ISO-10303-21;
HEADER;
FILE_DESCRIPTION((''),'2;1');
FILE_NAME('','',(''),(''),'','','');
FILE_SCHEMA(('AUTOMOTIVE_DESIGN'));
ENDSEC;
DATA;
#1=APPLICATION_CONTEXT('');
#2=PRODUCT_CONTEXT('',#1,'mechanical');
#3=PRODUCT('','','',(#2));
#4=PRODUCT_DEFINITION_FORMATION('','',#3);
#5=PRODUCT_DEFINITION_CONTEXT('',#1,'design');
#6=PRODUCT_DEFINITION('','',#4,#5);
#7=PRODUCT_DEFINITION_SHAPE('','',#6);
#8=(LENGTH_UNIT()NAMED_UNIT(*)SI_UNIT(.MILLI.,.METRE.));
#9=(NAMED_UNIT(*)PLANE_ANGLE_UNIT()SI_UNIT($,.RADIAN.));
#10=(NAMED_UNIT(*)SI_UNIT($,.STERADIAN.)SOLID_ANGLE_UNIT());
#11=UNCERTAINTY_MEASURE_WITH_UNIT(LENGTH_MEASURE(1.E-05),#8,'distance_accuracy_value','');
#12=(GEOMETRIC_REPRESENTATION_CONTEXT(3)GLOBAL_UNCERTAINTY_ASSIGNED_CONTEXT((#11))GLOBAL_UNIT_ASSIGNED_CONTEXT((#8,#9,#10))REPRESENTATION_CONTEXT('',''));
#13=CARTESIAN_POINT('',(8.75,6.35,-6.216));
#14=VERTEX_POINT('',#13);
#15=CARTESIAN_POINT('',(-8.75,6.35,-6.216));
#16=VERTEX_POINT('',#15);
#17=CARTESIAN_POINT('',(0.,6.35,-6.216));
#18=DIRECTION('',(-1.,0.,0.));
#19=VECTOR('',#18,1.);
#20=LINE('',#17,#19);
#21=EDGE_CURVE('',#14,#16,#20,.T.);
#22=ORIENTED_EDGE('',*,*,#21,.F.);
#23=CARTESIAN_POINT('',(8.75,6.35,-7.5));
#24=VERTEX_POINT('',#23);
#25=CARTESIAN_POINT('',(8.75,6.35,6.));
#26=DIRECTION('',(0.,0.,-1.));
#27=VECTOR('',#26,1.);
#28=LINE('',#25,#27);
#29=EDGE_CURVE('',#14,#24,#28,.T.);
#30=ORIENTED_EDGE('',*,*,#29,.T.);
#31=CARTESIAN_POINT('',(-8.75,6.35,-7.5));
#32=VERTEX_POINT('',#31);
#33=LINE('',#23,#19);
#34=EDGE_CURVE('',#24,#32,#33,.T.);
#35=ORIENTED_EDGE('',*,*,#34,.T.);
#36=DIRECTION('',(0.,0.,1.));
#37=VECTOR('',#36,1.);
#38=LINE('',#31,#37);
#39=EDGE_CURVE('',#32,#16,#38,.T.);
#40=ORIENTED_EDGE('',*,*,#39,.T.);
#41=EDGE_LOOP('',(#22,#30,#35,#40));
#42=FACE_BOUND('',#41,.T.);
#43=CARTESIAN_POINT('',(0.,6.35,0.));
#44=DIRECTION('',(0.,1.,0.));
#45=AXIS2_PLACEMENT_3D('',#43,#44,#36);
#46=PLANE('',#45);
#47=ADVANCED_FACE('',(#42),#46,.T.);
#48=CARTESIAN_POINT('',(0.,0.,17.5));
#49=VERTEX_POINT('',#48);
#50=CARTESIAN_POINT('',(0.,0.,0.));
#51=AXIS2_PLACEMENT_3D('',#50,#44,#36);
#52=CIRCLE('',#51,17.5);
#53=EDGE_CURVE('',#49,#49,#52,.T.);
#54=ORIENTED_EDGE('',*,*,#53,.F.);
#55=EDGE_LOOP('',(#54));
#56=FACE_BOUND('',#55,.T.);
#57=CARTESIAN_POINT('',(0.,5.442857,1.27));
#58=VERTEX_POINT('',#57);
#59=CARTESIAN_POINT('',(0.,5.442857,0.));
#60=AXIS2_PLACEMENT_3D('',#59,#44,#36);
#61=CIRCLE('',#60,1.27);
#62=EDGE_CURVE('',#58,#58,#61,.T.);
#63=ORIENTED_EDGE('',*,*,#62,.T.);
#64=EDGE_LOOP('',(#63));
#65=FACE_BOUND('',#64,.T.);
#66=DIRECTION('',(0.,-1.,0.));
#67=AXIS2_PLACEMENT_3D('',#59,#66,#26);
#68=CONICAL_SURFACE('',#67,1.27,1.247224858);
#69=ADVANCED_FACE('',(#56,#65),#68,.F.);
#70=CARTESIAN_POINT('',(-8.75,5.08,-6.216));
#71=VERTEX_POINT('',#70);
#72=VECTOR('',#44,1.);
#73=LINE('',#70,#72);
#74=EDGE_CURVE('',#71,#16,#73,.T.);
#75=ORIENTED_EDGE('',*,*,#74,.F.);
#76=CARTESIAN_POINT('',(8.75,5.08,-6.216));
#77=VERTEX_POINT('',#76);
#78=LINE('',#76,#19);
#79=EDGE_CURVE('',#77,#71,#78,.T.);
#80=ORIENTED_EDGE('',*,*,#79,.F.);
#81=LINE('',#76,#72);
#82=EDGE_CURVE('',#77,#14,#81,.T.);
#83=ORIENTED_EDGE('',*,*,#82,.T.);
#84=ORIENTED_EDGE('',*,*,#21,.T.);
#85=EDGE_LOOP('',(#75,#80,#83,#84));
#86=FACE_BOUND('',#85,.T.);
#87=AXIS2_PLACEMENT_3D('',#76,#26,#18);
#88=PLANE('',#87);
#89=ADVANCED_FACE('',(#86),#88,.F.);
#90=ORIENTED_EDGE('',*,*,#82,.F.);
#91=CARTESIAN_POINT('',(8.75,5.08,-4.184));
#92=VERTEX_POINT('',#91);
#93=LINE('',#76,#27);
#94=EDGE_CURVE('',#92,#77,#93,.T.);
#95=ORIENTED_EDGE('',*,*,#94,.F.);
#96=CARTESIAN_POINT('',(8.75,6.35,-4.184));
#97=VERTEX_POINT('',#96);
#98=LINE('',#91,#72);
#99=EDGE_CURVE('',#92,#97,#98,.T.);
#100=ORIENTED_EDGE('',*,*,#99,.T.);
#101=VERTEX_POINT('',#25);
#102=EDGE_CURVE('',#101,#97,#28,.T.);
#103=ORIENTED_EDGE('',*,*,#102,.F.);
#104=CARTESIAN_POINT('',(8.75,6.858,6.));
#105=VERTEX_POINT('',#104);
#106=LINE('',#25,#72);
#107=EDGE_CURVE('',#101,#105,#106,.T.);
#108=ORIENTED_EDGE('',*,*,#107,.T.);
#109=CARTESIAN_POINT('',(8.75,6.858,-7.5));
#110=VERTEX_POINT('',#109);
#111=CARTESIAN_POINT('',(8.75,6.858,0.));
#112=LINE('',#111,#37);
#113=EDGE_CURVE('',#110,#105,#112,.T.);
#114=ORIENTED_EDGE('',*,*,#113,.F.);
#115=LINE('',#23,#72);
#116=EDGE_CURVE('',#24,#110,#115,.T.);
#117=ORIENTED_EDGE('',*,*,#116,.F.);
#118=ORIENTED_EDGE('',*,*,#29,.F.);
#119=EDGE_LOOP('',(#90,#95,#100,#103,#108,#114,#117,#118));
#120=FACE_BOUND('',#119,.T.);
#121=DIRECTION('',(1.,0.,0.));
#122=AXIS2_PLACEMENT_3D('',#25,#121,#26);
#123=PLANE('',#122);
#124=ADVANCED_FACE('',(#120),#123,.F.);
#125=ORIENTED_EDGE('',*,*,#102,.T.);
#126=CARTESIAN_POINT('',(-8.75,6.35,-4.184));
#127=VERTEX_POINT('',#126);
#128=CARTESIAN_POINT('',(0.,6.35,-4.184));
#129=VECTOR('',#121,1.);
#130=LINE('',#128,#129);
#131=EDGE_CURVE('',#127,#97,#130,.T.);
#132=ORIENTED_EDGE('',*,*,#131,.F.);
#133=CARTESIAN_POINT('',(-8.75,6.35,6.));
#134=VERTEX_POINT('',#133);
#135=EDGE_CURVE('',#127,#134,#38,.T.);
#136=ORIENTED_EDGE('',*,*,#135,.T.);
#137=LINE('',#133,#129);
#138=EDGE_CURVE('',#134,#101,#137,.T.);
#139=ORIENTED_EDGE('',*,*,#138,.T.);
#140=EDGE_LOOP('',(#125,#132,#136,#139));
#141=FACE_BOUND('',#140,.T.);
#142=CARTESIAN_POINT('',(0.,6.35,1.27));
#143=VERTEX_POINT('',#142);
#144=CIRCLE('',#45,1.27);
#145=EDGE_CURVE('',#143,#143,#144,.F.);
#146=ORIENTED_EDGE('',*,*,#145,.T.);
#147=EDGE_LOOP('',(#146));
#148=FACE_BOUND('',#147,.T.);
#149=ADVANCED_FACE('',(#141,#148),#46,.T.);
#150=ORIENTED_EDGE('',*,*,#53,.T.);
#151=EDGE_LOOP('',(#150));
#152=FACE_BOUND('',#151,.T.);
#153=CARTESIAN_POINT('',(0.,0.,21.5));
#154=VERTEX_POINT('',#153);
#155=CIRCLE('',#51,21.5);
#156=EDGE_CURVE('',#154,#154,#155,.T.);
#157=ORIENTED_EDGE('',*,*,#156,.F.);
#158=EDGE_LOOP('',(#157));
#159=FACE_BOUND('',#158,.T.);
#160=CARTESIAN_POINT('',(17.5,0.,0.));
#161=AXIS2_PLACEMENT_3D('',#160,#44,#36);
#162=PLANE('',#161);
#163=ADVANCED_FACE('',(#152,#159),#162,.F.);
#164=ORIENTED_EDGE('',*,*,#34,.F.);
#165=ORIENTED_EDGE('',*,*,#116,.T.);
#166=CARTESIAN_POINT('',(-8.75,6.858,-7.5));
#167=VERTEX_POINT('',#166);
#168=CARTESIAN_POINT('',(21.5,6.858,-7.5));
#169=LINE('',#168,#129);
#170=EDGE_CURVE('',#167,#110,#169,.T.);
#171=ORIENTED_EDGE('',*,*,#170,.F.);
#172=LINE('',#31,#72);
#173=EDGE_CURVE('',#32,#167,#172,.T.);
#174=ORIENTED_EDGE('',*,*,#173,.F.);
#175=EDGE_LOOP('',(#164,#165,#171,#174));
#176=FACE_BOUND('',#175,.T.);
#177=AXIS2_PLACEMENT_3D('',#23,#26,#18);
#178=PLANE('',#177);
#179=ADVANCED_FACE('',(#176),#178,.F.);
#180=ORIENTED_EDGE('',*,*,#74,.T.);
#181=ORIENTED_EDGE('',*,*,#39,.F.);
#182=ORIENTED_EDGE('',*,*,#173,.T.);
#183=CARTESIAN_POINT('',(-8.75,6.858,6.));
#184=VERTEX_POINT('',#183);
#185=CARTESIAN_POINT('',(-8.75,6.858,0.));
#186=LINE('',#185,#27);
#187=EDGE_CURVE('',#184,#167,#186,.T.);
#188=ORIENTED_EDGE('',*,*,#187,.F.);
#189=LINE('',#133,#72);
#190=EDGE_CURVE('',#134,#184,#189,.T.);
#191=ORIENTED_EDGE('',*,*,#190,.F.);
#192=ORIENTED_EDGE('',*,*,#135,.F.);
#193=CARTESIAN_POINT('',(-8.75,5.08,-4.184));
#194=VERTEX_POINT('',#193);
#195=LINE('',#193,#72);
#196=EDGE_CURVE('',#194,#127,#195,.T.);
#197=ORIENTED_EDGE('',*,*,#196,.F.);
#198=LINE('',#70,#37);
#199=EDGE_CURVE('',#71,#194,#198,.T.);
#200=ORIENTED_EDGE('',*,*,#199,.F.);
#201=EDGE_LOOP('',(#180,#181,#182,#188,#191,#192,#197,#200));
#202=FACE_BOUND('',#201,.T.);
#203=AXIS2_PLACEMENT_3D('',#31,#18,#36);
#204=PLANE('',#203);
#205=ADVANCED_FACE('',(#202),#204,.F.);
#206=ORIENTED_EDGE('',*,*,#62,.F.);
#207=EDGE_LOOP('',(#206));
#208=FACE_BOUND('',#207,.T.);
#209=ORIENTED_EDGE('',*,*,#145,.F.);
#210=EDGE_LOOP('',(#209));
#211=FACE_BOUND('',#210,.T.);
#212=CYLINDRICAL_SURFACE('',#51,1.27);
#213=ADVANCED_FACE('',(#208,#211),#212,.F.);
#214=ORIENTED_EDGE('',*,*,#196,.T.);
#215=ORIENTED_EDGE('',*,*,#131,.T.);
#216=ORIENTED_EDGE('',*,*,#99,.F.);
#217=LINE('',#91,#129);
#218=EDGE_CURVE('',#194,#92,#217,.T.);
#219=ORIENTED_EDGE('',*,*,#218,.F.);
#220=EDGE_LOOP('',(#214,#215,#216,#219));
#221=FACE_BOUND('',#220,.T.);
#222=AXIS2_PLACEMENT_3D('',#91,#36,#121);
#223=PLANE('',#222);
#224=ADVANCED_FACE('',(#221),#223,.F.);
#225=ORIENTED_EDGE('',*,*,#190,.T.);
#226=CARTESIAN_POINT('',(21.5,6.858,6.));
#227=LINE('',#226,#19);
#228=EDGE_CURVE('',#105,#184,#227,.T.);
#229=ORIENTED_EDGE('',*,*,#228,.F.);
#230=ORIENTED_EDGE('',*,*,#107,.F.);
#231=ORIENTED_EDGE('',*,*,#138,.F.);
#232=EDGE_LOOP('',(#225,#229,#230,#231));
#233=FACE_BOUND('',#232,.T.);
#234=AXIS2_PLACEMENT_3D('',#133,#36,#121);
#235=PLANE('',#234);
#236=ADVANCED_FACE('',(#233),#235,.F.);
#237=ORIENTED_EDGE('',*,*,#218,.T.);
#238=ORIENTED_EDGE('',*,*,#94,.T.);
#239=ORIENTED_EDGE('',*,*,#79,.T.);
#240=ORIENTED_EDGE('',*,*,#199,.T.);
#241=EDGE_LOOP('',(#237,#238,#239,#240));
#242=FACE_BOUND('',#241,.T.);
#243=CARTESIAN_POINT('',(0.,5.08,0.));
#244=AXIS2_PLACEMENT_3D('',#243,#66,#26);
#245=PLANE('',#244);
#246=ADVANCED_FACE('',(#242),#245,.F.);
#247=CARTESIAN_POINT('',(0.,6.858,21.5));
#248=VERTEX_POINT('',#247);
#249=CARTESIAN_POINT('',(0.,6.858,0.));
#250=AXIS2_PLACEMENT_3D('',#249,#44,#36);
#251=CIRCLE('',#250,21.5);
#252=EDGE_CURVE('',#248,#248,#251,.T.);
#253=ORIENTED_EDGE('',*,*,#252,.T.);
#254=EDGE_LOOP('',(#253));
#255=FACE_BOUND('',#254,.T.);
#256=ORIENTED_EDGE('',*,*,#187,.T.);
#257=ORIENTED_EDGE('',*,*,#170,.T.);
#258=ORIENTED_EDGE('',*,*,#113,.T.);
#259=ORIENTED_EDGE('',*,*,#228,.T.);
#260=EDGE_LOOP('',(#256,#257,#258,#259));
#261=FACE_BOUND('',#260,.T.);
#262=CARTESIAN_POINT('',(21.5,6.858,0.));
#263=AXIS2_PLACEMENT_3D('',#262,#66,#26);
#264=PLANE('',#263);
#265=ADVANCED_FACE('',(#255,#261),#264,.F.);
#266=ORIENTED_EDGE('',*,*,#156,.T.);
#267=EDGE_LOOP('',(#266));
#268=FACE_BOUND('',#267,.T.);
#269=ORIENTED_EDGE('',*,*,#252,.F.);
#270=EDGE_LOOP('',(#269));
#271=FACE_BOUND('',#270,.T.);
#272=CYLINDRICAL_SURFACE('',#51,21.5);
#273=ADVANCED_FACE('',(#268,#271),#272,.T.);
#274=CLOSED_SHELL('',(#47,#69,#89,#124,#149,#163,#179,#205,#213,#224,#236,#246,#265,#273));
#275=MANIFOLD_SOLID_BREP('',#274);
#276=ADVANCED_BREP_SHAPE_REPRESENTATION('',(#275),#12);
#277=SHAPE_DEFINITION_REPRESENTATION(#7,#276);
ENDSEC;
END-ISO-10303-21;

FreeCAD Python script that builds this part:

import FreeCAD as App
import Part
import Sketcher

V = App.Vector
Q = App.Units.Quantity


def add_polygon(sketch, points):
    """Adds a closed chain of lines whose ends are joined by coincident constraints."""
    first, n = sketch.GeometryCount, len(points)
    for a, b in zip(points, points[1:] + points[:1]):
        sketch.addGeometry(Part.LineSegment(App.Vector(*a, 0), App.Vector(*b, 0)), False)
    for i in range(n):
        sketch.addConstraint(Sketcher.Constraint("Coincident", first + i, 2, first + (i + 1) % n, 1))

doc = App.newDocument("Part")
body = doc.addObject("PartDesign::Body", "Body")

sketch1 = body.newObject("Sketcher::SketchObject", "Sketch")
sketch1.AttachmentSupport = (doc.getObject("XY_Plane"), [""])
sketch1.MapMode = "FlatFace"
add_polygon(sketch1, [(1.3, 5.4), (17.5, 0), (21.5, 0), (21.5, 6.9), (1.3, 6.9)])
sketch1.addConstraint(Sketcher.Constraint("Horizontal", 1))
sketch1.addConstraint(Sketcher.Constraint("Vertical", 2))
sketch1.addConstraint(Sketcher.Constraint("Horizontal", 3))
sketch1.addConstraint(Sketcher.Constraint("Vertical", 4))
sketch1.addConstraint(Sketcher.Constraint("PointOnObject", 0, 2, -1))
sketch1.addConstraint(Sketcher.Constraint("DistanceY", 2, 1, 2, 2, Q("0.27 in")))
sketch1.addConstraint(Sketcher.Constraint("DistanceX", -1, 1, 3, 2, Q("0.05 in")))
sketch1.addConstraint(Sketcher.Constraint("DistanceX", 1, 1, 1, 2, Q("4 mm")))
sketch1.addConstraint(Sketcher.Constraint("DistanceX", 3, 2, 3, 1, Q("20.23 mm")))
sketch1.addConstraint(Sketcher.Constraint("Distance", 0, Q("17.118341 mm")))
revolution = body.newObject("PartDesign::Revolution", "Revolution")
revolution.Profile = sketch1
revolution.ReferenceAxis = (sketch1, ["V_Axis"])
revolution.Angle = 360

sketch2 = body.newObject("Sketcher::SketchObject", "Sketch001")
sketch2.AttachmentSupport = (doc.getObject("XZ_Plane"), [""])
sketch2.MapMode = "FlatFace"
sketch2.AttachmentOffset = App.Placement(V(0, 0, -0.5 * 25.4), App.Rotation())
add_polygon(sketch2, [(-9, -8), (-9, 6), (9, 6), (9, -8)])
sketch2.addConstraint(Sketcher.Constraint("Vertical", 0))
sketch2.addConstraint(Sketcher.Constraint("Horizontal", 1))
sketch2.addConstraint(Sketcher.Constraint("Vertical", 2))
sketch2.addConstraint(Sketcher.Constraint("Horizontal", 3))
sketch2.addConstraint(Sketcher.Constraint("DistanceX", 1, 1, 1, 2, Q("17.5 mm")))
sketch2.addConstraint(Sketcher.Constraint("DistanceY", 0, 1, 0, 2, Q("13.5 mm")))
sketch2.addConstraint(Sketcher.Constraint("DistanceX", 0, 2, -1, 1, Q("8.75 mm")))
sketch2.addConstraint(Sketcher.Constraint("DistanceY", -1, 1, 0, 2, Q("6 mm")))
pocket1 = body.newObject("PartDesign::Pocket", "Pocket")
pocket1.Profile = sketch2
pocket1.Length = Q("0.25 in")
pocket1.Reversed = True

sketch3 = body.newObject("Sketcher::SketchObject", "Sketch002")
sketch3.AttachmentSupport = (doc.getObject("XZ_Plane"), [""])
sketch3.MapMode = "FlatFace"
sketch3.AttachmentOffset = App.Placement(V(0, 0, -0.6 * 25.4), App.Rotation())
add_polygon(sketch3, [(-8.8, -6.2), (-8.8, -4.2), (8.8, -4.2), (8.8, -6.2)])
sketch3.addConstraint(Sketcher.Constraint("Vertical", 0))
sketch3.addConstraint(Sketcher.Constraint("Horizontal", 1))
sketch3.addConstraint(Sketcher.Constraint("Vertical", 2))
sketch3.addConstraint(Sketcher.Constraint("Horizontal", 3))
sketch3.addConstraint(Sketcher.Constraint("DistanceY", 0, 1, 0, 2, Q("0.08 in")))
sketch3.addConstraint(Sketcher.Constraint("DistanceX", 1, 1, 1, 2, Q("17.5 mm")))
sketch3.addConstraint(Sketcher.Constraint("DistanceX", 0, 2, -1, 1, Q("8.75 mm")))
sketch3.addConstraint(Sketcher.Constraint("DistanceY", 0, 2, -1, 1, Q("4.184 mm")))
pocket2 = body.newObject("PartDesign::Pocket", "Pocket001")
pocket2.Profile = sketch3
pocket2.Length = Q("0.4 in")
pocket2.Reversed = True

doc.recompute()
